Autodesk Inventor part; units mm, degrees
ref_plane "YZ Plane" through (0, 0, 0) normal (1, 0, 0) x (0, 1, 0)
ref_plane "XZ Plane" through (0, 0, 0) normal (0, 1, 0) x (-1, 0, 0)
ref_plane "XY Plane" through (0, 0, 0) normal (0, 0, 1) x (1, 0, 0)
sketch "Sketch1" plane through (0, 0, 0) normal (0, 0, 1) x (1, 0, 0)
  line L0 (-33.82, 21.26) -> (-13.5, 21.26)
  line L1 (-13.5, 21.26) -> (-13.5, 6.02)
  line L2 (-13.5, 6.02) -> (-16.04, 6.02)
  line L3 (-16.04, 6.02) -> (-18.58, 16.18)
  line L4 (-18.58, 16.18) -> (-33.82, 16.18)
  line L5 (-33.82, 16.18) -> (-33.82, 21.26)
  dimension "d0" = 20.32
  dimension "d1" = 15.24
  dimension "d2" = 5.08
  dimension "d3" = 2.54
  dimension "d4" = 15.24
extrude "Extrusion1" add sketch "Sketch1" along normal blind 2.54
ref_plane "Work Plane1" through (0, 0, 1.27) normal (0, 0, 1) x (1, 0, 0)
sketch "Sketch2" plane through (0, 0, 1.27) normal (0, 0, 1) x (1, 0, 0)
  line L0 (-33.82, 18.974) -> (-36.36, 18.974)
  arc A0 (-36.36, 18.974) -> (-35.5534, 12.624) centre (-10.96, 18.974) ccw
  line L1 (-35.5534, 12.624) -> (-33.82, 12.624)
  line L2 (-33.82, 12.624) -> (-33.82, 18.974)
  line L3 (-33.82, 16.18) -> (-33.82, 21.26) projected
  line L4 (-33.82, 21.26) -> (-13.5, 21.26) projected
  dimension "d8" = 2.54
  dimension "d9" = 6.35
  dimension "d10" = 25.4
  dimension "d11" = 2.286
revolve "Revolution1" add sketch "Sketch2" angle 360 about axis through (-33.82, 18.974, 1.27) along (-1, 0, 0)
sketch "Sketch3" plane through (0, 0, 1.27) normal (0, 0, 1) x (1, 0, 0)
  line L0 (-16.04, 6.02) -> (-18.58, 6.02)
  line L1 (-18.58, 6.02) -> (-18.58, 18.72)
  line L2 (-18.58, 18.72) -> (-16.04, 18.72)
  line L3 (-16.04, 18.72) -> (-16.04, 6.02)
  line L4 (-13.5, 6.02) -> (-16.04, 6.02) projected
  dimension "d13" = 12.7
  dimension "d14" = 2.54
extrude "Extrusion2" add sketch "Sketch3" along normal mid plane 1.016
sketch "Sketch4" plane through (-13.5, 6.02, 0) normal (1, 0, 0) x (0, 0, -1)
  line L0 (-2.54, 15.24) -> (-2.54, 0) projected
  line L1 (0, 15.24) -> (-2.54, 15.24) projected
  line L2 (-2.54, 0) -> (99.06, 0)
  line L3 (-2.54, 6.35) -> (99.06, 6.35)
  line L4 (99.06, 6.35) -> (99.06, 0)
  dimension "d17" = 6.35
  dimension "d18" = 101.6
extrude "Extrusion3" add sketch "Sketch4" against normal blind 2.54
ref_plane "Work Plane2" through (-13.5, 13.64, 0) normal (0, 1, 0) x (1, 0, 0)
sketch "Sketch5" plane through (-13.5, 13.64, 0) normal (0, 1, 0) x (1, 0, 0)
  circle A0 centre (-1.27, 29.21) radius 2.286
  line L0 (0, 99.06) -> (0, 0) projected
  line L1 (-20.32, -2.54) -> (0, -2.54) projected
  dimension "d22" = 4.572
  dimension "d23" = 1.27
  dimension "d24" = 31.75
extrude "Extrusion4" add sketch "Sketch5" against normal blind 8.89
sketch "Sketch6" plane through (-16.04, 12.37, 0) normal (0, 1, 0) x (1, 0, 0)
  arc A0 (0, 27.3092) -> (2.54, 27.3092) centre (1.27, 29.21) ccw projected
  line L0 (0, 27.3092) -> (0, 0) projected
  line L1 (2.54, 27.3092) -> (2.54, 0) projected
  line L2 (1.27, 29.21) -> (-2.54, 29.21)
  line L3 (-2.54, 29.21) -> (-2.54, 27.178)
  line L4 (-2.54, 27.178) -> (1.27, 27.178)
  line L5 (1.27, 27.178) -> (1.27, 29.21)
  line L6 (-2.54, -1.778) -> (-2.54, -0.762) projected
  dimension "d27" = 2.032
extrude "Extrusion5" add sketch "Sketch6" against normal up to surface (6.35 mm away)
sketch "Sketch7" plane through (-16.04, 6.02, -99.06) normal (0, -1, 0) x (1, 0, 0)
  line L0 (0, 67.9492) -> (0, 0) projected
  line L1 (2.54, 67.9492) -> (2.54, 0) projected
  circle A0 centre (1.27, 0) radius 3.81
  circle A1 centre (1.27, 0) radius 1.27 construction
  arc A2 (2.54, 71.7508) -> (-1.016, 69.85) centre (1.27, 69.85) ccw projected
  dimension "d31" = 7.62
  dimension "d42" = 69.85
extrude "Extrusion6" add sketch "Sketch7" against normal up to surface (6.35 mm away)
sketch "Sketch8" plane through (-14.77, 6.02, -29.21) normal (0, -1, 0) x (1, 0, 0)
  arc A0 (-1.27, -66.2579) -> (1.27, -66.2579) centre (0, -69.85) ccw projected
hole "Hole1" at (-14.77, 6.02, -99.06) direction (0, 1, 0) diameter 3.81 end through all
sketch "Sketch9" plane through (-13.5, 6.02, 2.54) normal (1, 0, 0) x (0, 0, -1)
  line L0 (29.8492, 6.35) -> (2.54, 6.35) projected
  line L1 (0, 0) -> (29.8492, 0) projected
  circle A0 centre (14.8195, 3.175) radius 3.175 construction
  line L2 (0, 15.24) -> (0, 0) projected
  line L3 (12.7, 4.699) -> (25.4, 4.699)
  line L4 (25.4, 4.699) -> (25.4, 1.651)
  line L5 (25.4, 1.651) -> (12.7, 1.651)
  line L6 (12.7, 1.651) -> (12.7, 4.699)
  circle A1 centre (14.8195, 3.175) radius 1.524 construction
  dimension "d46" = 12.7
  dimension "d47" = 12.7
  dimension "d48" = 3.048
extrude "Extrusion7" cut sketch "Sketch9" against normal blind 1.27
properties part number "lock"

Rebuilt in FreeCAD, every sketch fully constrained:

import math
import FreeCAD as App
import Part
import Sketcher

V = App.Vector
Q = App.Units.Quantity

doc = App.newDocument("Part")
body = doc.addObject("PartDesign::Body", "Body")

sketch1 = doc.addObject("Sketcher::SketchObject", "Sketch")
body.addObject(sketch1)
sketch1.AttachmentSupport = (doc.XY_Plane, [""])
sketch1.MapMode = "FlatFace"
sketch1.addGeometry([
    Part.LineSegment(V(-13.5, 21.3, 0), V(-33.8, 21.3, 0)),
    Part.LineSegment(V(-33.8, 21.3, 0), V(-33.8, 16.2, 0)),
    Part.LineSegment(V(-33.8, 16.2, 0), V(-18.6, 16.2, 0)),
    Part.LineSegment(V(-18.6, 16.2, 0), V(-16, 6, 0)),
    Part.LineSegment(V(-16, 6, 0), V(-13.5, 6, 0)),
    Part.LineSegment(V(-13.5, 6, 0), V(-13.5, 21.3, 0)),
], False)
sketch1.addConstraint([
    Sketcher.Constraint("Coincident", 0, 2, 1, 1),
    Sketcher.Constraint("Coincident", 1, 2, 2, 1),
    Sketcher.Constraint("Coincident", 2, 2, 3, 1),
    Sketcher.Constraint("Coincident", 3, 2, 4, 1),
    Sketcher.Constraint("Coincident", 4, 2, 5, 1),
    Sketcher.Constraint("Coincident", 5, 2, 0, 1),
    Sketcher.Constraint("Horizontal", 0),
    Sketcher.Constraint("Vertical", 1),
    Sketcher.Constraint("Horizontal", 2),
    Sketcher.Constraint("Horizontal", 4),
    Sketcher.Constraint("Vertical", 5),
    Sketcher.Constraint("Equal", 2, 5),
    Sketcher.Constraint("DistanceX", 0, 2, 0, 1, Q("0.8 in")),
    Sketcher.Constraint("DistanceX", 2, 1, 2, 2, Q("0.6 in")),
    Sketcher.Constraint("DistanceX", 4, 1, 4, 2, Q("0.1 in")),
    Sketcher.Constraint("DistanceY", 1, 2, 1, 1, Q("0.2 in")),
    Sketcher.Constraint("DistanceY", -1, 1, 0, 2, Q("0.837 in")),
    Sketcher.Constraint("DistanceX", 0, 2, -1, 1, Q("1.3315 in")),
])
pad1 = doc.addObject("PartDesign::Pad", "Pad")
body.addObject(pad1)
pad1.Profile = sketch1
pad1.Length = Q("0.1 in")

sketch2 = doc.addObject("Sketcher::SketchObject", "Sketch001")
body.addObject(sketch2)
sketch2.AttachmentSupport = (doc.XY_Plane, [""])
sketch2.MapMode = "FlatFace"
sketch2.AttachmentOffset = App.Placement(V(0, 0, 0.05 * 25.4), App.Rotation())
sketch2.addGeometry([
    Part.LineSegment(V(-33.8, 12.6, 0), V(-33.8, 19, 0)),
    Part.LineSegment(V(-33.8, 19, 0), V(-36.4, 19, 0)),
    Part.ArcOfCircle(Part.Circle(V(-11, 19, 0), V(0, 0, 1), 25.4), math.radians(180), math.radians(194.48)),
    Part.LineSegment(V(-35.6, 12.6, 0), V(-33.8, 12.6, 0)),
], False)
sketch2.addGeometry(Part.LineSegment(V(-11, 19, 0), V(-36.4, 19, 0)), True)
sketch2.addConstraint([
    Sketcher.Constraint("Coincident", 0, 2, 1, 1),
    Sketcher.Constraint("Coincident", 1, 2, 2, 1),
    Sketcher.Constraint("Coincident", 2, 2, 3, 1),
    Sketcher.Constraint("Coincident", 3, 2, 0, 1),
    Sketcher.Constraint("Vertical", 0),
    Sketcher.Constraint("Horizontal", 1),
    Sketcher.Constraint("Horizontal", 3),
    Sketcher.Constraint("Horizontal", 4),
    Sketcher.Constraint("Coincident", 4, 1, 2, 3),
    Sketcher.Constraint("Coincident", 4, 2, 1, 2),
    Sketcher.Constraint("DistanceX", 1, 2, 1, 1, Q("0.1 in")),
    Sketcher.Constraint("DistanceY", 0, 1, 0, 2, Q("0.25 in")),
    Sketcher.Constraint("Radius", 2, Q("0.9999 in")),
    Sketcher.Constraint("DistanceY", -1, 1, 2, 3, Q("0.747 in")),
    Sketcher.Constraint("DistanceX", 2, 3, -1, 1, Q("0.4316 in")),
])
revolution = doc.addObject("PartDesign::Revolution", "Revolution")
body.addObject(revolution)
revolution.Profile = sketch2
revolution.ReferenceAxis = (sketch2, ["Axis0"])
revolution.Angle = 360

sketch3 = doc.addObject("Sketcher::SketchObject", "Sketch002")
body.addObject(sketch3)
sketch3.AttachmentSupport = (doc.XY_Plane, [""])
sketch3.MapMode = "FlatFace"
sketch3.AttachmentOffset = App.Placement(V(0, 0, 0.05 * 25.4), App.Rotation())
sketch3.addGeometry([
    Part.LineSegment(V(-18.6, 6, 0), V(-16, 6, 0)),
    Part.LineSegment(V(-16, 6, 0), V(-16, 18.7, 0)),
    Part.LineSegment(V(-16, 18.7, 0), V(-18.6, 18.7, 0)),
    Part.LineSegment(V(-18.6, 18.7, 0), V(-18.6, 6, 0)),
], False)
sketch3.addConstraint([
    Sketcher.Constraint("Coincident", 0, 2, 1, 1),
    Sketcher.Constraint("Coincident", 1, 2, 2, 1),
    Sketcher.Constraint("Coincident", 2, 2, 3, 1),
    Sketcher.Constraint("Coincident", 3, 2, 0, 1),
    Sketcher.Constraint("Horizontal", 0),
    Sketcher.Constraint("Vertical", 1),
    Sketcher.Constraint("Horizontal", 2),
    Sketcher.Constraint("Vertical", 3),
    Sketcher.Constraint("DistanceX", 0, 1, 0, 2, Q("0.1 in")),
    Sketcher.Constraint("DistanceY", 1, 1, 1, 2, Q("0.5 in")),
    Sketcher.Constraint("DistanceY", -1, 1, 0, 2, Q("0.237 in")),
    Sketcher.Constraint("DistanceX", 0, 2, -1, 1, Q("0.6315 in")),
])
pad2 = doc.addObject("PartDesign::Pad", "Pad001")
body.addObject(pad2)
pad2.Profile = sketch3
pad2.Length = Q("0.04 in")
pad2.Midplane = True

sketch4 = doc.addObject("Sketcher::SketchObject", "Sketch003")
body.addObject(sketch4)
sketch4.AttachmentSupport = (doc.YZ_Plane, [""])
sketch4.MapMode = "FlatFace"
sketch4.AttachmentOffset = App.Placement(V(0, 0, -0.5314961 * 25.4), App.Rotation())
sketch4.addGeometry([
    Part.LineSegment(V(12, -99, 0), V(12, 3, 0)),
    Part.LineSegment(V(12, 3, 0), V(6, 3, 0)),
    Part.LineSegment(V(6, 3, 0), V(6, -99, 0)),
    Part.LineSegment(V(6, -99, 0), V(12, -99, 0)),
], False)
sketch4.addConstraint([
    Sketcher.Constraint("Coincident", 0, 2, 1, 1),
    Sketcher.Constraint("Coincident", 1, 2, 2, 1),
    Sketcher.Constraint("Coincident", 2, 2, 3, 1),
    Sketcher.Constraint("Coincident", 3, 2, 0, 1),
    Sketcher.Constraint("Vertical", 0),
    Sketcher.Constraint("Horizontal", 1),
    Sketcher.Constraint("Vertical", 2),
    Sketcher.Constraint("Horizontal", 3),
    Sketcher.Constraint("DistanceY", 0, 1, 0, 2, Q("4 in")),
    Sketcher.Constraint("DistanceX", 1, 2, 1, 1, Q("0.25 in")),
    Sketcher.Constraint("DistanceY", -1, 1, 0, 2, Q("0.1 in")),
    Sketcher.Constraint("DistanceX", -1, 1, 0, 2, Q("0.487 in")),
])
pad3 = doc.addObject("PartDesign::Pad", "Pad002")
body.addObject(pad3)
pad3.Profile = sketch4
pad3.Length = Q("0.1 in")
pad3.Reversed = True

sketch5 = doc.addObject("Sketcher::SketchObject", "Sketch004")
body.addObject(sketch5)
sketch5.AttachmentSupport = (doc.XZ_Plane, [""])
sketch5.MapMode = "FlatFace"
sketch5.AttachmentOffset = App.Placement(V(0, 0, -0.5370079 * 25.4), App.Rotation())
sketch5.addGeometry(Part.Circle(V(-14.8, -29.2, 0), V(0, 0, 1), 2.3), False)
sketch5.addConstraint([
    Sketcher.Constraint("Diameter", 0, Q("0.18 in")),
    Sketcher.Constraint("DistanceY", 0, 3, -1, 1, Q("1.15 in")),
    Sketcher.Constraint("DistanceX", 0, 3, -1, 1, Q("0.5815 in")),
])
pad4 = doc.addObject("PartDesign::Pad", "Pad003")
body.addObject(pad4)
pad4.Profile = sketch5
pad4.Length = Q("0.35 in")

sketch6 = doc.addObject("Sketcher::SketchObject", "Sketch005")
body.addObject(sketch6)
sketch6.AttachmentSupport = (doc.XZ_Plane, [""])
sketch6.MapMode = "FlatFace"
sketch6.AttachmentOffset = App.Placement(V(0, 0, -0.4870079 * 25.4), App.Rotation())
sketch6.addGeometry([
    Part.LineSegment(V(-18.6, -27.2, 0), V(-14.8, -27.2, 0)),
    Part.LineSegment(V(-14.8, -27.2, 0), V(-14.8, -29.2, 0)),
    Part.LineSegment(V(-14.8, -29.2, 0), V(-18.6, -29.2, 0)),
    Part.LineSegment(V(-18.6, -29.2, 0), V(-18.6, -27.2, 0)),
], False)
sketch6.addConstraint([
    Sketcher.Constraint("Coincident", 0, 2, 1, 1),
    Sketcher.Constraint("Coincident", 1, 2, 2, 1),
    Sketcher.Constraint("Coincident", 2, 2, 3, 1),
    Sketcher.Constraint("Coincident", 3, 2, 0, 1),
    Sketcher.Constraint("Horizontal", 0),
    Sketcher.Constraint("Vertical", 1),
    Sketcher.Constraint("Horizontal", 2),
    Sketcher.Constraint("Vertical", 3),
    Sketcher.Constraint("DistanceY", 1, 2, 1, 1, Q("0.08 in")),
    Sketcher.Constraint("DistanceX", 0, 1, 0, 2, Q("0.15 in")),
    Sketcher.Constraint("DistanceY", 0, 2, -1, 1, Q("1.07 in")),
    Sketcher.Constraint("DistanceX", 0, 2, -1, 1, Q("0.5815 in")),
])
pad5 = doc.addObject("PartDesign::Pad", "Pad004")
body.addObject(pad5)
pad5.Profile = sketch6
pad5.Length = Q("0.25 in")

sketch7 = doc.addObject("Sketcher::SketchObject", "Sketch006")
body.addObject(sketch7)
sketch7.AttachmentSupport = (doc.XZ_Plane, [""])
sketch7.MapMode = "FlatFace"
sketch7.AttachmentOffset = App.Placement(V(0, 0, -0.2370079 * 25.4), App.Rotation())
sketch7.addGeometry(Part.Circle(V(-14.8, -99.1, 0), V(0, 0, 1), 3.8), False)
sketch7.addConstraint([
    Sketcher.Constraint("Diameter", 0, Q("0.3 in")),
    Sketcher.Constraint("DistanceY", 0, 3, -1, 1, Q("3.9 in")),
    Sketcher.Constraint("DistanceX", 0, 3, -1, 1, Q("0.5815 in")),
])
pad6 = doc.addObject("PartDesign::Pad", "Pad005")
body.addObject(pad6)
pad6.Profile = sketch7
pad6.Length = Q("0.25 in")
pad6.Reversed = True

sketch8 = doc.addObject("Sketcher::SketchObject", "Sketch007")
body.addObject(sketch8)
sketch8.AttachmentSupport = (doc.XZ_Plane, [""])
sketch8.MapMode = "FlatFace"
sketch8.AttachmentOffset = App.Placement(V(0, 0, -0.2370079 * 25.4), App.Rotation())
sketch8.addGeometry(Part.Circle(V(-14.8, -99.1, 0), V(0, 0, 1), 1.9), False)
sketch8.addConstraint([
    Sketcher.Constraint("Diameter", 0, Q("0.15 in")),
    Sketcher.Constraint("DistanceY", 0, 3, -1, 1, Q("3.9 in")),
    Sketcher.Constraint("DistanceX", 0, 3, -1, 1, Q("0.5815 in")),
])
doc.recompute()
hole = doc.addObject("PartDesign::Hole", "Hole")
body.addObject(hole)
hole.Profile = sketch8
hole.ThreadType = "None"
hole.Diameter = Q("0.15 in")
hole.DepthType = "ThroughAll"

sketch9 = doc.addObject("Sketcher::SketchObject", "Sketch008")
body.addObject(sketch9)
sketch9.AttachmentSupport = (doc.YZ_Plane, [""])
sketch9.MapMode = "FlatFace"
sketch9.AttachmentOffset = App.Placement(V(0, 0, -0.5314961 * 25.4), App.Rotation())
sketch9.addGeometry([
    Part.LineSegment(V(10.7, -22.9, 0), V(10.7, -10.2, 0)),
    Part.LineSegment(V(10.7, -10.2, 0), V(7.7, -10.2, 0)),
    Part.LineSegment(V(7.7, -10.2, 0), V(7.7, -22.9, 0)),
    Part.LineSegment(V(7.7, -22.9, 0), V(10.7, -22.9, 0)),
], False)
sketch9.addConstraint([
    Sketcher.Constraint("Coincident", 0, 2, 1, 1),
    Sketcher.Constraint("Coincident", 1, 2, 2, 1),
    Sketcher.Constraint("Coincident", 2, 2, 3, 1),
    Sketcher.Constraint("Coincident", 3, 2, 0, 1),
    Sketcher.Constraint("Vertical", 0),
    Sketcher.Constraint("Horizontal", 1),
    Sketcher.Constraint("Vertical", 2),
    Sketcher.Constraint("Horizontal", 3),
    Sketcher.Constraint("DistanceY", 0, 1, 0, 2, Q("0.5 in")),
    Sketcher.Constraint("DistanceX", 1, 2, 1, 1, Q("0.12 in")),
    Sketcher.Constraint("DistanceY", 0, 2, -1, 1, Q("0.4 in")),
    Sketcher.Constraint("DistanceX", -1, 1, 0, 2, Q("0.422 in")),
])
pocket1 = doc.addObject("PartDesign::Pocket", "Pocket")
body.addObject(pocket1)
pocket1.Profile = sketch9
pocket1.Length = Q("0.05 in")

doc.recompute()
